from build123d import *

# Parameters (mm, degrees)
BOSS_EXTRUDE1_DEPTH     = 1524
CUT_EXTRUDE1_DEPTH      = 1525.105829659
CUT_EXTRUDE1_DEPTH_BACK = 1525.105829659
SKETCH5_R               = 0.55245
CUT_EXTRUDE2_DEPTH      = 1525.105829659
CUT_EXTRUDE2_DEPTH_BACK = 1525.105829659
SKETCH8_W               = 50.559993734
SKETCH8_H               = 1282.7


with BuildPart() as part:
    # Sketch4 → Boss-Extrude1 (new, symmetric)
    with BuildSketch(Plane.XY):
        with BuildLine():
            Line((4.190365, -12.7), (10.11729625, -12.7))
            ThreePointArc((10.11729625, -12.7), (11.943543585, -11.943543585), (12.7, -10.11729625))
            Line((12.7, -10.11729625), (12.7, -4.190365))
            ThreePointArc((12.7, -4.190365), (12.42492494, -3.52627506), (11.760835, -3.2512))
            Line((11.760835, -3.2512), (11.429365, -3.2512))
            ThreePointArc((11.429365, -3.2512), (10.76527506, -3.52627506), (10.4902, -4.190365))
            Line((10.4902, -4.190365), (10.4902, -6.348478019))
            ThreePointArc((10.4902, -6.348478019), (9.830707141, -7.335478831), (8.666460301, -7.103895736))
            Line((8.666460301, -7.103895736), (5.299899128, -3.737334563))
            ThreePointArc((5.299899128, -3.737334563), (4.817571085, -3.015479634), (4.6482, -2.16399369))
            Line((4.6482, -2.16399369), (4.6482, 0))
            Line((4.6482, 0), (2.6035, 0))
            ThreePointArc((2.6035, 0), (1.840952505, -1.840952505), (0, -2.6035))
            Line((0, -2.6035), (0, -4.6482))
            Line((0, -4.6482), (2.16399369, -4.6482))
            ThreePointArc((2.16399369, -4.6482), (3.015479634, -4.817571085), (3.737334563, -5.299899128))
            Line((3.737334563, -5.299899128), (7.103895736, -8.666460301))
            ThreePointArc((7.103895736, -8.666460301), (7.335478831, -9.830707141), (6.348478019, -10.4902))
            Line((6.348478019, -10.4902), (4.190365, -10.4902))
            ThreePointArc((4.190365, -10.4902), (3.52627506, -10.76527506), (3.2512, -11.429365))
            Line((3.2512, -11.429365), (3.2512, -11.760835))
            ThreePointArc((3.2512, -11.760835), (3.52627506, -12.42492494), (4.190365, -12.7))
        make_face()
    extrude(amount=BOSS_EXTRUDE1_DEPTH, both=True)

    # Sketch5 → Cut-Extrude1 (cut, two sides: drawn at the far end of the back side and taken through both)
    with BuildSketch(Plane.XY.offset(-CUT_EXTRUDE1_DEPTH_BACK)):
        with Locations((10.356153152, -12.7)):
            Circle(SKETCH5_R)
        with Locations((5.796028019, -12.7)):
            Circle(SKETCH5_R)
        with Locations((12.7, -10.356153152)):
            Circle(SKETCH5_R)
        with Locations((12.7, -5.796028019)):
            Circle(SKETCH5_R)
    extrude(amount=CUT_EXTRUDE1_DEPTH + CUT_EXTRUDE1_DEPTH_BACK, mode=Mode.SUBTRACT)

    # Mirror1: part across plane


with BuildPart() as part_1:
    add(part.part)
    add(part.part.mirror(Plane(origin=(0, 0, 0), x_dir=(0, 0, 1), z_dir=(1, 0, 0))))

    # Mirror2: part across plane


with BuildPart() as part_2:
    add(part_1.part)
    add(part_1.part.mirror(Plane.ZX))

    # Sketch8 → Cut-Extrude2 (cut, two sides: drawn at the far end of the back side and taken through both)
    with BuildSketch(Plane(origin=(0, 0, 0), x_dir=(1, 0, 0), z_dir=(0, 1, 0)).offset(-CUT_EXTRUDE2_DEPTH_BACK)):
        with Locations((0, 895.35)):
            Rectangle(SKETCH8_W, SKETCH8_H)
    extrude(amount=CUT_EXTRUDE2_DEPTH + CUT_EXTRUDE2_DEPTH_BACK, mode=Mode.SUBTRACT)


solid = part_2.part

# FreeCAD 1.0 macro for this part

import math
import FreeCAD as App
import Part
import Sketcher
from FreeCAD import Vector
Q = App.Units.Quantity

doc = App.newDocument("Part")
body = doc.addObject("PartDesign::Body", "Body")

# Sketch on XY plane
sketch1 = doc.addObject("Sketcher::SketchObject", "Sketch")
body.addObject(sketch1)
sketch1.AttachmentSupport = (doc.XY_Plane, [""])
sketch1.MapMode = "FlatFace"
sketch1.addGeometry([
    Part.LineSegment(Vector(4.190365, -12.7, 0), Vector(10.117296, -12.7, 0)),  # 0
    Part.ArcOfCircle(Part.Circle(Vector(10.117296, -10.117296, 0), Vector(0, 0, 1), 2.582704), math.radians(-90), math.radians(0)),  # 1
    Part.LineSegment(Vector(12.7, -10.117296, 0), Vector(12.7, -4.190365, 0)),  # 2
    Part.ArcOfCircle(Part.Circle(Vector(11.760835, -4.190365, 0), Vector(0, 0, 1), 0.939165), math.radians(0), math.radians(90)),  # 3
    Part.LineSegment(Vector(11.760835, -3.2512, 0), Vector(11.429365, -3.2512, 0)),  # 4
    Part.ArcOfCircle(Part.Circle(Vector(11.429365, -4.190365, 0), Vector(0, 0, 1), 0.939165), math.radians(90), math.radians(180)),  # 5
    Part.LineSegment(Vector(10.4902, -4.190365, 0), Vector(10.4902, -6.348478, 0)),  # 6
    Part.ArcOfCircle(Part.Circle(Vector(9.421878, -6.348478, 0), Vector(0, 0, 1), 1.068322), math.radians(-135), math.radians(0)),  # 7
    Part.LineSegment(Vector(8.66646, -7.103896, 0), Vector(5.299899, -3.737335, 0)),  # 8
    Part.ArcOfCircle(Part.Circle(Vector(6.87324, -2.163994, 0), Vector(0, 0, 1), 2.22504), math.radians(-180), math.radians(-135)),  # 9
    Part.LineSegment(Vector(4.6482, -2.163994, 0), Vector(4.6482, 0, 0)),  # 10
    Part.LineSegment(Vector(4.6482, 0, 0), Vector(2.6035, 0, 0)),  # 11
    Part.ArcOfCircle(Part.Circle(Vector(0, 0, 0), Vector(0, 0, 1), 2.6035), math.radians(-90), math.radians(0)),  # 12
    Part.LineSegment(Vector(0, -2.6035, 0), Vector(0, -4.6482, 0)),  # 13
    Part.LineSegment(Vector(0, -4.6482, 0), Vector(2.163994, -4.6482, 0)),  # 14
    Part.ArcOfCircle(Part.Circle(Vector(2.163994, -6.87324, 0), Vector(0, 0, 1), 2.22504), math.radians(45), math.radians(90)),  # 15
    Part.LineSegment(Vector(3.737335, -5.299899, 0), Vector(7.103896, -8.66646, 0)),  # 16
    Part.ArcOfCircle(Part.Circle(Vector(6.348478, -9.421878, 0), Vector(0, 0, 1), 1.068322), math.radians(-90), math.radians(45)),  # 17
    Part.LineSegment(Vector(6.348478, -10.4902, 0), Vector(4.190365, -10.4902, 0)),  # 18
    Part.ArcOfCircle(Part.Circle(Vector(4.190365, -11.429365, 0), Vector(0, 0, 1), 0.939165), math.radians(90), math.radians(180)),  # 19
    Part.LineSegment(Vector(3.2512, -11.429365, 0), Vector(3.2512, -11.760835, 0)),  # 20
    Part.ArcOfCircle(Part.Circle(Vector(4.190365, -11.760835, 0), Vector(0, 0, 1), 0.939165), math.radians(-180), math.radians(-90)),  # 21
], False)
sketch1.addConstraint([
    Sketcher.Constraint("Tangent", 0, 2, 1, 1),
    Sketcher.Constraint("Tangent", 1, 2, 2, 1),
    Sketcher.Constraint("Tangent", 2, 2, 3, 1),
    Sketcher.Constraint("Tangent", 3, 2, 4, 1),
    Sketcher.Constraint("Tangent", 4, 2, 5, 1),
    Sketcher.Constraint("Tangent", 5, 2, 6, 1),
    Sketcher.Constraint("Tangent", 6, 2, 7, 2),
    Sketcher.Constraint("Tangent", 7, 1, 8, 1),
    Sketcher.Constraint("Tangent", 8, 2, 9, 2),
    Sketcher.Constraint("Tangent", 9, 1, 10, 1),
    Sketcher.Constraint("Coincident", 10, 2, 11, 1),
    Sketcher.Constraint("Coincident", 11, 2, 12, 2),
    Sketcher.Constraint("Coincident", 12, 1, 13, 1),
    Sketcher.Constraint("Coincident", 13, 2, 14, 1),
    Sketcher.Constraint("Tangent", 14, 2, 15, 2),
    Sketcher.Constraint("Tangent", 15, 1, 16, 1),
    Sketcher.Constraint("Tangent", 16, 2, 17, 2),
    Sketcher.Constraint("Tangent", 17, 1, 18, 1),
    Sketcher.Constraint("Tangent", 18, 2, 19, 1),
    Sketcher.Constraint("Tangent", 19, 2, 20, 1),
    Sketcher.Constraint("Tangent", 20, 2, 21, 1),
    Sketcher.Constraint("Tangent", 21, 2, 0, 1),
    Sketcher.Constraint("Horizontal", 0),
    Sketcher.Constraint("Vertical", 2),
    Sketcher.Constraint("Horizontal", 4),
    Sketcher.Constraint("Vertical", 6),
    Sketcher.Constraint("Vertical", 10),
    Sketcher.Constraint("Horizontal", 11),
    Sketcher.Constraint("Vertical", 13),
    Sketcher.Constraint("Horizontal", 14),
    Sketcher.Constraint("Horizontal", 18),
    Sketcher.Constraint("Vertical", 20),
    Sketcher.Constraint("Coincident", 12, 3, -1, 1),
    Sketcher.Constraint("Equal", 3, 5),
    Sketcher.Constraint("Equal", 9, 15),
    Sketcher.Constraint("Equal", 7, 17),
    Sketcher.Constraint("Equal", 5, 19),
    Sketcher.Constraint("Equal", 19, 21),
    Sketcher.Constraint("PointOnObject", 10, 2, -1),
    Sketcher.Constraint("PointOnObject", 12, 1, -2),
    Sketcher.Constraint("Parallel", 8, 16),
    Sketcher.Constraint("Equal", 0, 2),
    Sketcher.Constraint("Equal", 18, 6),
    Sketcher.Constraint("Equal", 14, 10),
    Sketcher.Constraint("Equal", 11, 13),
    Sketcher.Constraint("Equal", 4, 20),
    Sketcher.Constraint("Equal", 8, 16),
    Sketcher.Constraint("DistanceY", 0, 2, -1, 1, Q("0.5 in")),
    Sketcher.Constraint("Radius", 9, Q("0.0876 in")),
    Sketcher.Constraint("Radius", 12, Q("0.1025 in")),
    Sketcher.Constraint("DistanceX", 9, 1, 5, 2, Q("0.23 in")),
    Sketcher.Constraint("DistanceX", 11, 2, 11, 1, Q("0.0805 in")),
    Sketcher.Constraint("DistanceY", 3, 2, -1, 1, Q("0.128 in")),
    Sketcher.Constraint("Radius", 7, Q("1.068322 mm")),
    Sketcher.Constraint("DistanceX", 17, 3, 7, 3, Q("0.121 in")),
    Sketcher.Constraint("Radius", 1, Q("2.582704 mm")),
    Sketcher.Constraint("Radius", 3, Q("0.939165 mm")),
])
pad1 = doc.addObject("PartDesign::Pad", "Pad")
body.addObject(pad1)
pad1.Profile = sketch1
pad1.Length = Q("120 in")
pad1.Midplane = True

# Sketch on XY plane
sketch2 = doc.addObject("Sketcher::SketchObject", "Sketch001")
body.addObject(sketch2)
sketch2.AttachmentSupport = (doc.XY_Plane, [""])
sketch2.MapMode = "FlatFace"
sketch2.addGeometry([
    Part.Circle(Vector(10.356153, -12.7, 0), Vector(0, 0, 1), 0.55245),
    Part.Circle(Vector(5.796028, -12.7, 0), Vector(0, 0, 1), 0.55245),
    Part.Circle(Vector(12.7, -10.356153, 0), Vector(0, 0, 1), 0.55245),
    Part.Circle(Vector(12.7, -5.796028, 0), Vector(0, 0, 1), 0.55245),
], False)
sketch2.addConstraint([
    Sketcher.Constraint("Equal", 0, 1),
    Sketcher.Constraint("Equal", 1, 2),
    Sketcher.Constraint("Equal", 2, 3),
    Sketcher.Constraint("Horizontal", 0, 3, 1, 3),
    Sketcher.Constraint("Vertical", 2, 3, 3, 3),
    Sketcher.Constraint("Diameter", 0, Q("0.0435 in")),
    Sketcher.Constraint("DistanceY", 0, 3, -1, 1, Q("0.5 in")),
    Sketcher.Constraint("DistanceX", -1, 1, 2, 3, Q("0.5 in")),
    Sketcher.Constraint("DistanceX", -1, 1, 1, 3, Q("5.796028 mm")),
    Sketcher.Constraint("DistanceY", 3, 3, -1, 1, Q("5.796028 mm")),
    Sketcher.Constraint("DistanceX", -1, 1, 0, 3, Q("10.356153 mm")),
    Sketcher.Constraint("DistanceY", 2, 3, -1, 1, Q("10.356153 mm")),
])
pocket1 = doc.addObject("PartDesign::Pocket", "Pocket")
body.addObject(pocket1)
pocket1.Profile = sketch2
pocket1.Type = "ThroughAll"
pocket1.Midplane = True
body2 = doc.addObject("PartDesign::Body", "Body001")
doc.recompute()

body2.BaseFeature = body
doc.recompute()

mirroring = doc.addObject("Part::Mirroring", "Mirroring")
mirroring.Source = body
mirroring.Base = Vector(0, 0, 0)
mirroring.Normal = Vector(1, 0, 0)
body3 = doc.addObject("PartDesign::Body", "Body002")
body3.BaseFeature = mirroring
boolean = doc.addObject("PartDesign::Boolean", "Boolean")
body2.addObject(boolean)
boolean.Type = "Fuse"
boolean.addObjects([body3])
doc.recompute()
body4 = doc.addObject("PartDesign::Body", "Body003")
doc.recompute()

body4.BaseFeature = body2
doc.recompute()

mirroring2 = doc.addObject("Part::Mirroring", "Mirroring001")
mirroring2.Source = body2
mirroring2.Base = Vector(0, 0, 0)
mirroring2.Normal = Vector(0, 1, 0)
body5 = doc.addObject("PartDesign::Body", "Body004")
body5.BaseFeature = mirroring2
boolean2 = doc.addObject("PartDesign::Boolean", "Boolean001")
body4.addObject(boolean2)
boolean2.Type = "Fuse"
boolean2.addObjects([body5])
doc.recompute()

# Sketch on XZ plane
sketch3 = doc.addObject("Sketcher::SketchObject", "Sketch002")
body4.addObject(sketch3)
sketch3.AttachmentSupport = (doc.getObject("XZ_Plane003"), [""])
sketch3.MapMode = "FlatFace"
sketch3.addGeometry([
    Part.LineSegment(Vector(-25.279997, -1536.7, 0), Vector(-25.279997, -254, 0)),
    Part.LineSegment(Vector(-25.279997, -254, 0), Vector(25.279997, -254, 0)),
    Part.LineSegment(Vector(25.279997, -254, 0), Vector(25.279997, -1536.7, 0)),
    Part.LineSegment(Vector(25.279997, -1536.7, 0), Vector(-25.279997, -1536.7, 0)),
], False)
sketch3.addConstraint([
    Sketcher.Constraint("Coincident", 0, 2, 1, 1),
    Sketcher.Constraint("Coincident", 1, 2, 2, 1),
    Sketcher.Constraint("Coincident", 2, 2, 3, 1),
    Sketcher.Constraint("Coincident", 3, 2, 0, 1),
    Sketcher.Constraint("Vertical", 0),
    Sketcher.Constraint("Horizontal", 1),
    Sketcher.Constraint("Vertical", 2),
    Sketcher.Constraint("Horizontal", 3),
    Sketcher.Constraint("DistanceY", 0, 1, 0, 2, Q("50.5 in")),
    Sketcher.Constraint("DistanceY", 0, 2, -1, 1, Q("10 in")),
    Sketcher.Constraint("DistanceX", 1, 1, 1, 2, Q("50.559994 mm")),
    Sketcher.Constraint("DistanceX", 0, 2, -1, 1, Q("25.279997 mm")),
])
pocket2 = doc.addObject("PartDesign::Pocket", "Pocket001")
body4.addObject(pocket2)
pocket2.Profile = sketch3
pocket2.Type = "ThroughAll"
pocket2.Midplane = True
mirroring.Visibility = False
mirroring2.Visibility = False

doc.recompute()
